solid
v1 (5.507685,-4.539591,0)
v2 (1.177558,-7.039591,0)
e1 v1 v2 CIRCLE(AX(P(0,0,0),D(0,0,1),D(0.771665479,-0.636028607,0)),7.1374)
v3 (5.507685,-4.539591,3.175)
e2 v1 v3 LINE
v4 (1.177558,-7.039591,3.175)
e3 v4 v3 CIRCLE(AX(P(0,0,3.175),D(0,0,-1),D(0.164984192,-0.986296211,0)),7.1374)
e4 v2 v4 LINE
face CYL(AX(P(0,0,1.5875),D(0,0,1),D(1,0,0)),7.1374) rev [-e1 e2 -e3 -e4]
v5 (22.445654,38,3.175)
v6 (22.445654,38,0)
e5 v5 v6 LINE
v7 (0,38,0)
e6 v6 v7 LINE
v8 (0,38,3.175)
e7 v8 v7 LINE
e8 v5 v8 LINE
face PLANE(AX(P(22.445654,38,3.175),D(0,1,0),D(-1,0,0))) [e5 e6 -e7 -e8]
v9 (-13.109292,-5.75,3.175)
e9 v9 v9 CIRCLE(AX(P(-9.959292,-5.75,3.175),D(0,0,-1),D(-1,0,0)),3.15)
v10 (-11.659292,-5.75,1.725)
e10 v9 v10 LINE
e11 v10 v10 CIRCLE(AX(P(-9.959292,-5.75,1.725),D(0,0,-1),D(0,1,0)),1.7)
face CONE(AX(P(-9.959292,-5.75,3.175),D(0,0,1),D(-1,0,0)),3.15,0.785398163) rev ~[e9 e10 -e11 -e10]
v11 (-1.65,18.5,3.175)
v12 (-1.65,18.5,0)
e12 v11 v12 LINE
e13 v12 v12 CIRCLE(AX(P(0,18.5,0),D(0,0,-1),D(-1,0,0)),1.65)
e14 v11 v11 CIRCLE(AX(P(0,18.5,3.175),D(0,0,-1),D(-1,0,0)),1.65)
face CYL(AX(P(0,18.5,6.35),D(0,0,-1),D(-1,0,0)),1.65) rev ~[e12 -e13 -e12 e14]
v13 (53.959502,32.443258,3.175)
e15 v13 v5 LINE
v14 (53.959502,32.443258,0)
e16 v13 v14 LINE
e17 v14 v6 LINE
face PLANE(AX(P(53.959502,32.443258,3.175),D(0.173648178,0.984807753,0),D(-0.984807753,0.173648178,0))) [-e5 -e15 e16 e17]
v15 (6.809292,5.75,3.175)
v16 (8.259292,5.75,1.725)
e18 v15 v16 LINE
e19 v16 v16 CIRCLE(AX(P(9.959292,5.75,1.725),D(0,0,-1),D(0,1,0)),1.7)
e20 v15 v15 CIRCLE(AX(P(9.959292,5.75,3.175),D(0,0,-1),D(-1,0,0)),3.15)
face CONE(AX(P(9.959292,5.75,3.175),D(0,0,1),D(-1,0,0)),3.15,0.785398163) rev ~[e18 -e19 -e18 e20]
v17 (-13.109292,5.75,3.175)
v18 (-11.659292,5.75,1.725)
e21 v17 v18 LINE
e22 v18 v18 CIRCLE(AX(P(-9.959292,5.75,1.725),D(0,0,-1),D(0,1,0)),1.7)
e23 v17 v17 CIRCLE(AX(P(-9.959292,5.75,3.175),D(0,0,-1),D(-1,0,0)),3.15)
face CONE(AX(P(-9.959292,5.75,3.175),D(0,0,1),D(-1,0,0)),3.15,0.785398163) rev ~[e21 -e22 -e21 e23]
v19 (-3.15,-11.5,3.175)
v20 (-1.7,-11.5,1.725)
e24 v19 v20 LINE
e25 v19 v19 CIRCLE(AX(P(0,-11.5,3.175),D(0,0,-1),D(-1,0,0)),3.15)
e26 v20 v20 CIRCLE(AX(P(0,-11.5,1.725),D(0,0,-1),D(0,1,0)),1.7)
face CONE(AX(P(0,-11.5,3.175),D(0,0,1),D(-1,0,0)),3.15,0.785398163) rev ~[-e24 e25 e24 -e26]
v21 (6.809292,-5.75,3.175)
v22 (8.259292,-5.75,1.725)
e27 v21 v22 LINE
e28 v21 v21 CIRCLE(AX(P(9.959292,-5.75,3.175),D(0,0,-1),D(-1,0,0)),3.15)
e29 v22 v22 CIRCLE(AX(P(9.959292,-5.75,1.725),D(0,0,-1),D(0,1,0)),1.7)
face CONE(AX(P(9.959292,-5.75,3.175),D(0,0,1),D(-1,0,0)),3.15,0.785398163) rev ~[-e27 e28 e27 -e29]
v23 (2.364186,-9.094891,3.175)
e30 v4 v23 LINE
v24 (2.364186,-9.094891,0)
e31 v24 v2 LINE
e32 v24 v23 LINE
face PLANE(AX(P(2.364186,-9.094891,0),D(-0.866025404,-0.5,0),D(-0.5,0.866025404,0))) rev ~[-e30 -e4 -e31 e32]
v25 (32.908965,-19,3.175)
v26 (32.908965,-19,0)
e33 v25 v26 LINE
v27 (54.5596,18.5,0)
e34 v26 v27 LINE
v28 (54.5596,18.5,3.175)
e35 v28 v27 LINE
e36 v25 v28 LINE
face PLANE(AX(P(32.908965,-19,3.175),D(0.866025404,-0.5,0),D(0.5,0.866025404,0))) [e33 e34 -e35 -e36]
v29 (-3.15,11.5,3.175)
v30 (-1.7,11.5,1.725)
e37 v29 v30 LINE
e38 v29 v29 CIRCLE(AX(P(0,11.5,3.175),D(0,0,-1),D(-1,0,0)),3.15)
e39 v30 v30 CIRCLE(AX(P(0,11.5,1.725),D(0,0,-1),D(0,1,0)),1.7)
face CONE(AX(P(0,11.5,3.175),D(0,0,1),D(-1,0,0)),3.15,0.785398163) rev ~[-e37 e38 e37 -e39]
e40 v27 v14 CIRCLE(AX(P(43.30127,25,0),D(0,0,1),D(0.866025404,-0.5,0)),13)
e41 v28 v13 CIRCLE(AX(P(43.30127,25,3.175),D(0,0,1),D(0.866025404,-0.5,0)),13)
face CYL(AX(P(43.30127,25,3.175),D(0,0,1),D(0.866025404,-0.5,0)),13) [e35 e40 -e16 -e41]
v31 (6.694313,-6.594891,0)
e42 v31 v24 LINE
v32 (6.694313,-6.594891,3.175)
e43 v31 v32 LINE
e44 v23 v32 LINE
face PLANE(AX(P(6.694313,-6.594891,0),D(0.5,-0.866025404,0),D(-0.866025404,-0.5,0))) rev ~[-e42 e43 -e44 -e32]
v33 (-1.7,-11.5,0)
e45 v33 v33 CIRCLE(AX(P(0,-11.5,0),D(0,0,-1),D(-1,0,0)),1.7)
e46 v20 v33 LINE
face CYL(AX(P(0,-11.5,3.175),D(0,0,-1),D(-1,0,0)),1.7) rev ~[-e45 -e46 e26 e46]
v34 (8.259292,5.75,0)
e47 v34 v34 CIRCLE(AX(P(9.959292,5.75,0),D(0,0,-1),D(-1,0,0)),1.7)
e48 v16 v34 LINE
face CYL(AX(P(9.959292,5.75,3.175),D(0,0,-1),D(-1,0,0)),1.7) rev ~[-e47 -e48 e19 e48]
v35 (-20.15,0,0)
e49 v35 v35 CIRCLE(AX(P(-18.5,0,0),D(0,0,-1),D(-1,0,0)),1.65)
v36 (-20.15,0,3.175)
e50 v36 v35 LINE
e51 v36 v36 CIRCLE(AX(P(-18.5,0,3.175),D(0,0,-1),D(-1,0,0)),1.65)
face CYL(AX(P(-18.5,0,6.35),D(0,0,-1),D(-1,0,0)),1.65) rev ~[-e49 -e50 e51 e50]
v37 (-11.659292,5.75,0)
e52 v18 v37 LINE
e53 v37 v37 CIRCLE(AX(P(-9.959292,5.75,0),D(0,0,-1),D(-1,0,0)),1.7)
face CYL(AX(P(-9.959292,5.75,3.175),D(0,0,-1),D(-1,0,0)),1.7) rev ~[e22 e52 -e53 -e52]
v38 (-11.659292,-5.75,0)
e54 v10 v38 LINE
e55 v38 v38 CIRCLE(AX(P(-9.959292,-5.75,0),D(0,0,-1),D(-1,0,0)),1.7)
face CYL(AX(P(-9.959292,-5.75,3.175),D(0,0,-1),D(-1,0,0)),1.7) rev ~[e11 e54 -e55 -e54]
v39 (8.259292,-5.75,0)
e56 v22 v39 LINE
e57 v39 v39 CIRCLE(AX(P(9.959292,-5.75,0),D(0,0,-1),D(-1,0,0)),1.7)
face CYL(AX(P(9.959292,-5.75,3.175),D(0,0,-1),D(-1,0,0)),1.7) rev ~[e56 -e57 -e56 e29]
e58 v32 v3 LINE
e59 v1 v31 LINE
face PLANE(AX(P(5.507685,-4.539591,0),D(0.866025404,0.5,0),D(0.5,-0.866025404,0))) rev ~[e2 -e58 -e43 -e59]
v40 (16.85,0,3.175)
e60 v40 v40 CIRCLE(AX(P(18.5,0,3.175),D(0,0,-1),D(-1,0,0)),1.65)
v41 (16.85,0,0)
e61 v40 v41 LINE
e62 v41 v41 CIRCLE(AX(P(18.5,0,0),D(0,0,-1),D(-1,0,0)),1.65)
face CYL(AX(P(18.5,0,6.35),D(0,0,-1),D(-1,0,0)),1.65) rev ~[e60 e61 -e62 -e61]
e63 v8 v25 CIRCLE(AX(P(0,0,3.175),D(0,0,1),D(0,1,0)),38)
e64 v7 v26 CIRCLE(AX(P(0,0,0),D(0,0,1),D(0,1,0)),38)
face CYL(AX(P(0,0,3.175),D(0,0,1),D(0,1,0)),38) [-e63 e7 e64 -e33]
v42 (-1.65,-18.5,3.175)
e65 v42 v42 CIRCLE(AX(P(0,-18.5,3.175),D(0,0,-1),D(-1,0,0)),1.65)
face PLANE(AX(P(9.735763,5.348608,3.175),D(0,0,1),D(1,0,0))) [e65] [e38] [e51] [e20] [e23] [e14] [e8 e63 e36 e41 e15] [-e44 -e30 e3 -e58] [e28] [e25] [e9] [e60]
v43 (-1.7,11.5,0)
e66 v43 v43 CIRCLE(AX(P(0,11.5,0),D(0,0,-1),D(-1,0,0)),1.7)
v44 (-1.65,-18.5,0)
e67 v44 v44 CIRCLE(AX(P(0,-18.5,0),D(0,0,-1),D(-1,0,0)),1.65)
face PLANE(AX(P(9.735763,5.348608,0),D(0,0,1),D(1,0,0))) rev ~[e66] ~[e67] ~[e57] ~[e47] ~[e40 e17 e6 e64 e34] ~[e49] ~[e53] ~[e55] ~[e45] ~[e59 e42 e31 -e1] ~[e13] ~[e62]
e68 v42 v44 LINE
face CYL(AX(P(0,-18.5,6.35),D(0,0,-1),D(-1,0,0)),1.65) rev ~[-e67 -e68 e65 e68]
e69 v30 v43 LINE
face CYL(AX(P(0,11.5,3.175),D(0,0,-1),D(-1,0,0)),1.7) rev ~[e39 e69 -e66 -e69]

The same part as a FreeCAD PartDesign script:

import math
import FreeCAD as App
import Part
import Sketcher
from FreeCAD import Vector
Q = App.Units.Quantity


def add_polygon(sketch, points):
    """Adds a closed chain of lines whose ends are joined by coincident constraints."""
    first, n = sketch.GeometryCount, len(points)
    for a, b in zip(points, points[1:] + points[:1]):
        sketch.addGeometry(Part.LineSegment(App.Vector(*a, 0), App.Vector(*b, 0)), False)
    for i in range(n):
        sketch.addConstraint(Sketcher.Constraint("Coincident", first + i, 2, first + (i + 1) % n, 1))

doc = App.newDocument("Part")
params = doc.addObject("Spreadsheet::Sheet", "Params")
for row, (alias, value) in enumerate([
    ("sketch1_radius", "13 mm"),
    ("sketch1_radius2", "38 mm"),
    ("sketch1_length", "32 mm"),
    ("pad1_length", "3.175 mm"),
    ("sketch2_length", "5 mm"),
    ("groove_angle", "360 deg"),
    ("sketch4_diameter", "3.3 mm"),
    ("hole_diameter", "3.3 mm"),
    ("hole_depth", "3.175 mm"),
    ("sketch5_diameter", "3.4 mm"),
    ("hole2_diameter", "3.4 mm"),
    ("hole2_depth", "3.175 mm"),
    ("hole2_csink_diameter", "6.3 mm"),
], start=1):
    params.set(f"A{row}", alias)
    params.set(f"B{row}", "=" + value)
    params.setAlias(f"B{row}", alias)

body = doc.addObject("PartDesign::Body", "Body")

sketch1 = body.newObject("Sketcher::SketchObject", "Sketch")
sketch1.AttachmentSupport = (doc.getObject("XY_Plane"), [""])
sketch1.MapMode = "FlatFace"
sketch1.AttachmentOffset = App.Placement(Vector(0, 0, 3.175), App.Rotation())
sketch1.addGeometry([
    Part.LineSegment(Vector(32.908965, -19, 0), Vector(54.5596, 18.5, 0)),
    Part.ArcOfCircle(Part.Circle(Vector(43.30127, 25, 0), Vector(0, 0, 1), 13), math.radians(-30), math.radians(34.928819)),
    Part.LineSegment(Vector(53.959502, 32.443258, 0), Vector(22.445654, 38, 0)),
    Part.LineSegment(Vector(22.445654, 38, 0), Vector(0, 38, 0)),
    Part.ArcOfCircle(Part.Circle(Vector(0, 0, 0), Vector(0, 0, 1), 38), math.radians(90), math.radians(330)),
], False)
sketch1.addConstraint([
    Sketcher.Constraint("Tangent", 0, 2, 1, 1),
    Sketcher.Constraint("Coincident", 1, 2, 2, 1),
    Sketcher.Constraint("Coincident", 2, 2, 3, 1),
    Sketcher.Constraint("Tangent", 3, 2, 4, 1),
    Sketcher.Constraint("Tangent", 4, 2, 0, 1),
    Sketcher.Constraint("Horizontal", 3),
    Sketcher.Constraint("Coincident", 4, 3, -1, 1),
    Sketcher.Constraint("Radius", 1, 13.0),
    Sketcher.Constraint("Radius", 4, 38.0),
    Sketcher.Constraint("Angle", 0, Q("60 deg")),
    Sketcher.Constraint("Angle", 2, Q("170 deg")),
    Sketcher.Constraint("Distance", 2, 32.0),
    Sketcher.Constraint("DistanceY", -1, 1, 1, 3, 25.0),
])
sketch1.setExpression("Constraints[7]", "Params.sketch1_radius")
sketch1.setExpression("Constraints[8]", "Params.sketch1_radius2")
sketch1.setExpression("Constraints[11]", "Params.sketch1_length")
pad1 = body.newObject("PartDesign::Pad", "Pad")
pad1.Profile = sketch1
pad1.setExpression("Length", "Params.pad1_length")
pad1.Reversed = True

sketch2 = body.newObject("Sketcher::SketchObject", "Sketch001")
sketch2.AttachmentSupport = (doc.getObject("XY_Plane"), [""])
sketch2.MapMode = "FlatFace"
sketch2.addGeometry([
    Part.LineSegment(Vector(5.507685, -4.539591, 0), Vector(6.694313, -6.594891, 0)),
    Part.LineSegment(Vector(6.694313, -6.594891, 0), Vector(2.364186, -9.094891, 0)),
    Part.LineSegment(Vector(2.364186, -9.094891, 0), Vector(1.177558, -7.039591, 0)),
    Part.ArcOfCircle(Part.Circle(Vector(0, 0, 0), Vector(0, 0, 1), 7.1374), math.radians(-80.503684), math.radians(-39.496316)),
], False)
sketch2.addConstraint([
    Sketcher.Constraint("Coincident", 0, 2, 1, 1),
    Sketcher.Constraint("Coincident", 1, 2, 2, 1),
    Sketcher.Constraint("Coincident", 2, 2, 3, 1),
    Sketcher.Constraint("Coincident", 3, 2, 0, 1),
    Sketcher.Constraint("Coincident", 3, 3, -1, 1),
    Sketcher.Constraint("Perpendicular", 0, 1),
    Sketcher.Constraint("Perpendicular", 1, 2),
    Sketcher.Constraint("Equal", 0, 2),
    Sketcher.Constraint("Angle", 0, Q("-60 deg")),
    Sketcher.Constraint("Distance", 1, 5.0),
    Sketcher.Constraint("Radius", 3, 7.1374),
    Sketcher.Constraint("DistanceY", 1, 2, 2, 2, 2.0553),
])
sketch2.setExpression("Constraints[9]", "Params.sketch2_length")
pocket1 = body.newObject("PartDesign::Pocket", "Pocket")
pocket1.Profile = sketch2
pocket1.Type = "ThroughAll"
pocket1.Reversed = True

sketch3 = body.newObject("Sketcher::SketchObject", "Sketch002")
sketch3.AttachmentSupport = (doc.getObject("XZ_Plane"), [""])
sketch3.MapMode = "FlatFace"
add_polygon(sketch3, [(0, 3.175), (0, 0), (7.1374, 0), (7.1374, 3.175)])
sketch3.addConstraint([
    Sketcher.Constraint("Vertical", 0),
    Sketcher.Constraint("Horizontal", 1),
    Sketcher.Constraint("Vertical", 2),
    Sketcher.Constraint("Horizontal", 3),
    Sketcher.Constraint("Coincident", 0, 2, -1, 1),
    Sketcher.Constraint("DistanceY", 0, 2, 0, 1, 3.175),
    Sketcher.Constraint("DistanceX", 1, 1, 1, 2, 7.1374),
])
groove = body.newObject("PartDesign::Groove", "Groove")
groove.Profile = sketch3
groove.ReferenceAxis = (sketch3, ["V_Axis"])
groove.setExpression("Angle", "Params.groove_angle")

sketch4 = body.newObject("Sketcher::SketchObject", "Sketch003")
sketch4.AttachmentSupport = (doc.getObject("XY_Plane"), [""])
sketch4.MapMode = "FlatFace"
sketch4.AttachmentOffset = App.Placement(Vector(0, 0, 3.175), App.Rotation())
sketch4.addGeometry([
    Part.Circle(Vector(18.5, 0, 0), Vector(0, 0, 1), 1.65),
    Part.Circle(Vector(0, -18.5, 0), Vector(0, 0, 1), 1.65),
    Part.Circle(Vector(-18.5, 0, 0), Vector(0, 0, 1), 1.65),
    Part.Circle(Vector(0, 18.5, 0), Vector(0, 0, 1), 1.65),
], False)
sketch4.addConstraint([
    Sketcher.Constraint("Equal", 0, 1),
    Sketcher.Constraint("Equal", 1, 2),
    Sketcher.Constraint("Equal", 2, 3),
    Sketcher.Constraint("Symmetric", 0, 3, 2, 3, -1, 1),
    Sketcher.Constraint("Symmetric", 1, 3, 3, 3, -1, 1),
    Sketcher.Constraint("PointOnObject", 0, 3, -1),
    Sketcher.Constraint("PointOnObject", 1, 3, -2),
    Sketcher.Constraint("Diameter", 0, 3.3),
    Sketcher.Constraint("DistanceX", 2, 3, 0, 3, 37.0),
    Sketcher.Constraint("DistanceY", 1, 3, 3, 3, 37.0),
])
sketch4.setExpression("Constraints[7]", "Params.sketch4_diameter")
doc.recompute()
hole = body.newObject("PartDesign::Hole", "Hole")
hole.Profile = sketch4
hole.ThreadType = "None"
hole.setExpression("Diameter", "Params.hole_diameter")
hole.DepthType = "Dimension"
hole.setExpression("Depth", "Params.hole_depth")
hole.DrillPoint = "Flat"

sketch5 = body.newObject("Sketcher::SketchObject", "Sketch004")
sketch5.AttachmentSupport = (doc.getObject("XY_Plane"), [""])
sketch5.MapMode = "FlatFace"
sketch5.AttachmentOffset = App.Placement(Vector(0, 0, 3.175), App.Rotation())
sketch5.addGeometry([
    Part.Circle(Vector(-9.959292, 5.75, 0), Vector(0, 0, 1), 1.7),
    Part.Circle(Vector(-9.959292, -5.75, 0), Vector(0, 0, 1), 1.7),
    Part.Circle(Vector(0, -11.5, 0), Vector(0, 0, 1), 1.7),
    Part.Circle(Vector(9.959292, -5.75, 0), Vector(0, 0, 1), 1.7),
    Part.Circle(Vector(9.959292, 5.75, 0), Vector(0, 0, 1), 1.7),
    Part.Circle(Vector(0, 11.5, 0), Vector(0, 0, 1), 1.7),
], False)
sketch5.addConstraint([
    Sketcher.Constraint("Equal", 0, 1),
    Sketcher.Constraint("Equal", 1, 2),
    Sketcher.Constraint("Equal", 2, 3),
    Sketcher.Constraint("Equal", 3, 4),
    Sketcher.Constraint("Equal", 4, 5),
    Sketcher.Constraint("Symmetric", 0, 3, 3, 3, -1, 1),
    Sketcher.Constraint("Symmetric", 1, 3, 4, 3, -1, 1),
    Sketcher.Constraint("Symmetric", 2, 3, 5, 3, -1, 1),
    Sketcher.Constraint("Symmetric", 1, 3, 3, 3, -2),
    Sketcher.Constraint("PointOnObject", 2, 3, -2),
    Sketcher.Constraint("Diameter", 0, 3.4),
    Sketcher.Constraint("DistanceY", 2, 3, 5, 3, 23.0),
    Sketcher.Constraint("DistanceY", 1, 3, 0, 3, 11.5),
    Sketcher.Constraint("DistanceX", 0, 3, -1, 1, 9.959292),
])
sketch5.setExpression("Constraints[10]", "Params.sketch5_diameter")
doc.recompute()
hole2 = body.newObject("PartDesign::Hole", "Hole001")
hole2.Profile = sketch5
hole2.ThreadType = "None"
hole2.setExpression("Diameter", "Params.hole2_diameter")
hole2.DepthType = "Dimension"
hole2.setExpression("Depth", "Params.hole2_depth")
hole2.DrillPoint = "Flat"
hole2.HoleCutType = "Countersink"
hole2.setExpression("HoleCutDiameter", "Params.hole2_csink_diameter")
hole2.HoleCutCountersinkAngle = 90

doc.recompute()
